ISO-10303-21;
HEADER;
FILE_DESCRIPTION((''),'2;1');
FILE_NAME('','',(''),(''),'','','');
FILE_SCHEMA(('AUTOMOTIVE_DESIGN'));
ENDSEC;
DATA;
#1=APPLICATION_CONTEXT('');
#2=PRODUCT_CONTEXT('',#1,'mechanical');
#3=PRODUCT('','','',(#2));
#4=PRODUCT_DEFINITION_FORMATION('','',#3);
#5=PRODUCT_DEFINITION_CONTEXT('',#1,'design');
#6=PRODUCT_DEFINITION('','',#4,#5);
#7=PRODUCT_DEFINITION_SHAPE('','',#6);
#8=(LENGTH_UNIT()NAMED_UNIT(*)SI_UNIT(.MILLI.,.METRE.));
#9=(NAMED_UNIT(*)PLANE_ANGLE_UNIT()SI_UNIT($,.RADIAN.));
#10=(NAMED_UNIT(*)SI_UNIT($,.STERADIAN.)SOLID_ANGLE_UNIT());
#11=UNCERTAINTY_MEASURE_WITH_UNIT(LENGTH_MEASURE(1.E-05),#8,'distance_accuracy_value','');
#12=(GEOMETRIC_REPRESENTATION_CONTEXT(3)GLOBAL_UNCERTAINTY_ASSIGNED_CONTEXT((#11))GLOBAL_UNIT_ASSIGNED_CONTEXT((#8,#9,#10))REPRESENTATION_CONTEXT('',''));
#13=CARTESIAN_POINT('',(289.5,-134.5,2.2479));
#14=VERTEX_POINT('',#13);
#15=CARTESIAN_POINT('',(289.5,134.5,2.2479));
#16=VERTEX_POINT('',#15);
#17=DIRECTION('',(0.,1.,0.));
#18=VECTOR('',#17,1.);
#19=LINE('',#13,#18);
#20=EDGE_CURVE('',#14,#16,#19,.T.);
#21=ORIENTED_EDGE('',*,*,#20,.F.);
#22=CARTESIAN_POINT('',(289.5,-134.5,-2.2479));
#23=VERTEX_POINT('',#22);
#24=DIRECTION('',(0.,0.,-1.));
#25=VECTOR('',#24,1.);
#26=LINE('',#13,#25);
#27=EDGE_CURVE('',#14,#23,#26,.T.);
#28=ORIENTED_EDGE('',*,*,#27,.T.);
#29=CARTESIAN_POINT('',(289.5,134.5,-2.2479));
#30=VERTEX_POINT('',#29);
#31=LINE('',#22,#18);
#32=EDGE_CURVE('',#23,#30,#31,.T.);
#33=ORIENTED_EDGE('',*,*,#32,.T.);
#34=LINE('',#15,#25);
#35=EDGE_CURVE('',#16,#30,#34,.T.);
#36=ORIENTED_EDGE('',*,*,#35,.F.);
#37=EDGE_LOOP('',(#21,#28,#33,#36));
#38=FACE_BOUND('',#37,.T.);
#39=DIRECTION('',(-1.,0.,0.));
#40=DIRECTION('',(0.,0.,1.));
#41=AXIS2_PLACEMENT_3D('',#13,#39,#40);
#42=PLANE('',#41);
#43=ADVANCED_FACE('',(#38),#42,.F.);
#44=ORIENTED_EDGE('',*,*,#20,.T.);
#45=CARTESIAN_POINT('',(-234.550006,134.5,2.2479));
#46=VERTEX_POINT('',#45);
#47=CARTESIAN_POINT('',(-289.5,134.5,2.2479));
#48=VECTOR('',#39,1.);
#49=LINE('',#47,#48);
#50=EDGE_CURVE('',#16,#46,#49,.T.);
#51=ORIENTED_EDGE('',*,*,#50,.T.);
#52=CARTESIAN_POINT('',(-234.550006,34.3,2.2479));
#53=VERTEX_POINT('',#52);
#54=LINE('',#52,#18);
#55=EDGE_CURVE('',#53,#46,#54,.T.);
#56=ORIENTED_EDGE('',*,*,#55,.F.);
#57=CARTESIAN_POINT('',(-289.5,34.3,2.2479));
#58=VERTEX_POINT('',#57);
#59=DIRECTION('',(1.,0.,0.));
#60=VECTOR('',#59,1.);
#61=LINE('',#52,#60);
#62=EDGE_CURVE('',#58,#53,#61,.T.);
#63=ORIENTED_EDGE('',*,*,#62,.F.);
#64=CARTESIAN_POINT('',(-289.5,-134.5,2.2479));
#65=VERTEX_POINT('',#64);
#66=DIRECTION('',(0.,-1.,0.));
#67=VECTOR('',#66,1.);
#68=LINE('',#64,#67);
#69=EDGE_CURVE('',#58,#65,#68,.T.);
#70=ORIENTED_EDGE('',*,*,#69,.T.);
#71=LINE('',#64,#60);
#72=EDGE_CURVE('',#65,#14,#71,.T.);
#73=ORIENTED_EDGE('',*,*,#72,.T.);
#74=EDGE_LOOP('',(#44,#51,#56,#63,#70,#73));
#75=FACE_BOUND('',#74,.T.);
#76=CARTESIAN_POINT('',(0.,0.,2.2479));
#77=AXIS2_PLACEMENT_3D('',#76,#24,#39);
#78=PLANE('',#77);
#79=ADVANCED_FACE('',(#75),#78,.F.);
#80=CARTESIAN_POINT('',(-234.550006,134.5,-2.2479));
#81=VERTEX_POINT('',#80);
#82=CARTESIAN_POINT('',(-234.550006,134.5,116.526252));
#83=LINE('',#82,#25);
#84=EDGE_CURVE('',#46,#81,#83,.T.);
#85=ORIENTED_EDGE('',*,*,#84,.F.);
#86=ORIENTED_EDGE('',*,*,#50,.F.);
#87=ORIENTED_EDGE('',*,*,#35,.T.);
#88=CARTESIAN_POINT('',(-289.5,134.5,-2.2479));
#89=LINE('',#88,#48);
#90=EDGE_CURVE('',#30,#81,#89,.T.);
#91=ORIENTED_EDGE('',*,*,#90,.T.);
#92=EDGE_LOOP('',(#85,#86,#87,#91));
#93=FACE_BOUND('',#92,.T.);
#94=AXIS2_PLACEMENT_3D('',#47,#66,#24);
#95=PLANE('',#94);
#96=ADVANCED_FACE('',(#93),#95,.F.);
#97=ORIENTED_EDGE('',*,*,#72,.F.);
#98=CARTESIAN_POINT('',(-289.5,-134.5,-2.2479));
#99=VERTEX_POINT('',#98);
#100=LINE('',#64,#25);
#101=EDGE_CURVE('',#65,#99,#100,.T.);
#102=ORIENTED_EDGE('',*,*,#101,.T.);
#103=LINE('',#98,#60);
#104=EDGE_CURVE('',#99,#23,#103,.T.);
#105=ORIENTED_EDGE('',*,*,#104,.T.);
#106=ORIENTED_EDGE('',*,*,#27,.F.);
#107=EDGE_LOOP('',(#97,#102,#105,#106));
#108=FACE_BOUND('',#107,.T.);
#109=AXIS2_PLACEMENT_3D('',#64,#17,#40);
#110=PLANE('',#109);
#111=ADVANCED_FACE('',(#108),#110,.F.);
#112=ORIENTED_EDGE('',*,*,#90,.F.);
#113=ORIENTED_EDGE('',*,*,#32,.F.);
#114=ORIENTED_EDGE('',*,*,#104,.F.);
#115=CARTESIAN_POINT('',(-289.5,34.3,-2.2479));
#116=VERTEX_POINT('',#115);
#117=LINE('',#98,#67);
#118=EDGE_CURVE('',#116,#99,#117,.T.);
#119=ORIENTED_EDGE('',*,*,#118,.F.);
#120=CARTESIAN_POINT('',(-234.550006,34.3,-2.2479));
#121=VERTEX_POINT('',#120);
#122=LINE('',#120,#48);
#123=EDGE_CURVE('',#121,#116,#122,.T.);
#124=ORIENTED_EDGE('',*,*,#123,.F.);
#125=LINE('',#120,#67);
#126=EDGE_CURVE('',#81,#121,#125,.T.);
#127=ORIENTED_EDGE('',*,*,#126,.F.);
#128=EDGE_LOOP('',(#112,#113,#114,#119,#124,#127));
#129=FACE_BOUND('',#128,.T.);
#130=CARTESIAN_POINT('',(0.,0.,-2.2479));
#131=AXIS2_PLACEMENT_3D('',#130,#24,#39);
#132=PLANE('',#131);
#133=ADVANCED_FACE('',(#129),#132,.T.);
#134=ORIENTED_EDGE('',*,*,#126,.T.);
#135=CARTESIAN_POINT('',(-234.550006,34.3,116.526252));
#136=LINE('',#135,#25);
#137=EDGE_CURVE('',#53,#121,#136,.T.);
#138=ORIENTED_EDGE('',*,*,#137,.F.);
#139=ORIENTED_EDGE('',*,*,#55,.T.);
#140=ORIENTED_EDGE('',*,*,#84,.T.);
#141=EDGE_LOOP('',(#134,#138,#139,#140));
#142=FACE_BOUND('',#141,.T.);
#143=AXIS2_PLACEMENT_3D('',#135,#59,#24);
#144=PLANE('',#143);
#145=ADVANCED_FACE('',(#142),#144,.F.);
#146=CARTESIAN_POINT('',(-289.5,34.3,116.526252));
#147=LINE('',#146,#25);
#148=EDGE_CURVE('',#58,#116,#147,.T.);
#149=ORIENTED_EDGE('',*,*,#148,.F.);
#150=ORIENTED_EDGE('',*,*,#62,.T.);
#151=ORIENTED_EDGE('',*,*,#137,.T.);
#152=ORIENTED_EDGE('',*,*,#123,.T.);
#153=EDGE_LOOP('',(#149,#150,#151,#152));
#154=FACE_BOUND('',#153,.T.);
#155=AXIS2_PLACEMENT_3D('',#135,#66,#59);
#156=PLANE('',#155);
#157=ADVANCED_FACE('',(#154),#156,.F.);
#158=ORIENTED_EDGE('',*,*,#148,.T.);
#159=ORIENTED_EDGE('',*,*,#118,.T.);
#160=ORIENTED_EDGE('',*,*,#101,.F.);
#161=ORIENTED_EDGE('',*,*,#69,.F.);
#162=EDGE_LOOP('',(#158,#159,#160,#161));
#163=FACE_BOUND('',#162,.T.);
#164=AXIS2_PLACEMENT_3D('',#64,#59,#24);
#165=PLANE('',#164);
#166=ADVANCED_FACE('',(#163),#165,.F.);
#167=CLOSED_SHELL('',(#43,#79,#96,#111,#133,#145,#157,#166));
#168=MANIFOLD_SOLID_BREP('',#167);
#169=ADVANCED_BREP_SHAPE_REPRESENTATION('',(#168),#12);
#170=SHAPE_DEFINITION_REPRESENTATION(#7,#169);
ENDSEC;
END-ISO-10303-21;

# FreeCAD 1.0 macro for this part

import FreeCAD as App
import Part
import Sketcher

V = App.Vector
Q = App.Units.Quantity

doc = App.newDocument("Part")
params = doc.addObject("Spreadsheet::Sheet", "Params")
for row, (alias, value) in enumerate([
    ("sketch1_width", "579 mm"),
    ("sketch1_height", "269 mm"),
    ("pad1_length", "4.4958 mm"),
    ("sketch2_height", "100.2 mm"),
    ("pocket1_length", "4.4958 mm"),
], start=1):
    params.set(f"A{row}", alias)
    params.set(f"B{row}", "=" + value)
    params.setAlias(f"B{row}", alias)

body = doc.addObject("PartDesign::Body", "Body")

sketch1 = body.newObject("Sketcher::SketchObject", "Sketch")
sketch1.AttachmentSupport = (doc.getObject("XY_Plane"), [""])
sketch1.MapMode = "FlatFace"
sketch1.addGeometry([
    Part.LineSegment(V(-290, 134, 0), V(-290, -134, 0)),
    Part.LineSegment(V(-290, -134, 0), V(290, -134, 0)),
    Part.LineSegment(V(290, -134, 0), V(290, 134, 0)),
    Part.LineSegment(V(290, 134, 0), V(-290, 134, 0)),
], False)
sketch1.addConstraint([
    Sketcher.Constraint("Coincident", 0, 2, 1, 1),
    Sketcher.Constraint("Coincident", 1, 2, 2, 1),
    Sketcher.Constraint("Coincident", 2, 2, 3, 1),
    Sketcher.Constraint("Coincident", 3, 2, 0, 1),
    Sketcher.Constraint("Vertical", 0),
    Sketcher.Constraint("Horizontal", 1),
    Sketcher.Constraint("Vertical", 2),
    Sketcher.Constraint("Horizontal", 3),
    Sketcher.Constraint("Symmetric", 0, 2, 2, 2, -1, 1),
    Sketcher.Constraint("DistanceX", 1, 1, 1, 2, Q("579 mm")),
    Sketcher.Constraint("DistanceY", 0, 2, 0, 1, Q("269 mm")),
])
sketch1.setExpression("Constraints[9]", "Params.sketch1_width")
sketch1.setExpression("Constraints[10]", "Params.sketch1_height")
pad1 = body.newObject("PartDesign::Pad", "Pad")
pad1.Profile = sketch1
pad1.setExpression("Length", "Params.pad1_length")
pad1.Midplane = True

sketch2 = body.newObject("Sketcher::SketchObject", "Sketch001")
sketch2.AttachmentSupport = (doc.getObject("XY_Plane"), [""])
sketch2.MapMode = "FlatFace"
sketch2.AttachmentOffset = App.Placement(V(0, 0, -2.2479), App.Rotation())
sketch2.addGeometry([
    Part.LineSegment(V(-235, 134, 0), V(-235, 34, 0)),
    Part.LineSegment(V(-235, 34, 0), V(-290, 34, 0)),
    Part.LineSegment(V(-290, 34, 0), V(-290, 134, 0)),
    Part.LineSegment(V(-290, 134, 0), V(-235, 134, 0)),
], False)
sketch2.addConstraint([
    Sketcher.Constraint("Coincident", 0, 2, 1, 1),
    Sketcher.Constraint("Coincident", 1, 2, 2, 1),
    Sketcher.Constraint("Coincident", 2, 2, 3, 1),
    Sketcher.Constraint("Coincident", 3, 2, 0, 1),
    Sketcher.Constraint("Vertical", 0),
    Sketcher.Constraint("Horizontal", 1),
    Sketcher.Constraint("Vertical", 2),
    Sketcher.Constraint("Horizontal", 3),
    Sketcher.Constraint("DistanceY", 0, 2, 0, 1, Q("100.2 mm")),
    Sketcher.Constraint("DistanceY", -1, 1, 0, 2, Q("34.3 mm")),
    Sketcher.Constraint("DistanceX", 1, 2, -1, 1, Q("289.5 mm")),
    Sketcher.Constraint("DistanceX", 1, 2, 1, 1, Q("54.949994 mm")),
])
sketch2.setExpression("Constraints[8]", "Params.sketch2_height")
pocket1 = body.newObject("PartDesign::Pocket", "Pocket")
pocket1.Profile = sketch2
pocket1.setExpression("Length", "Params.pocket1_length")
pocket1.Reversed = True

doc.recompute()
